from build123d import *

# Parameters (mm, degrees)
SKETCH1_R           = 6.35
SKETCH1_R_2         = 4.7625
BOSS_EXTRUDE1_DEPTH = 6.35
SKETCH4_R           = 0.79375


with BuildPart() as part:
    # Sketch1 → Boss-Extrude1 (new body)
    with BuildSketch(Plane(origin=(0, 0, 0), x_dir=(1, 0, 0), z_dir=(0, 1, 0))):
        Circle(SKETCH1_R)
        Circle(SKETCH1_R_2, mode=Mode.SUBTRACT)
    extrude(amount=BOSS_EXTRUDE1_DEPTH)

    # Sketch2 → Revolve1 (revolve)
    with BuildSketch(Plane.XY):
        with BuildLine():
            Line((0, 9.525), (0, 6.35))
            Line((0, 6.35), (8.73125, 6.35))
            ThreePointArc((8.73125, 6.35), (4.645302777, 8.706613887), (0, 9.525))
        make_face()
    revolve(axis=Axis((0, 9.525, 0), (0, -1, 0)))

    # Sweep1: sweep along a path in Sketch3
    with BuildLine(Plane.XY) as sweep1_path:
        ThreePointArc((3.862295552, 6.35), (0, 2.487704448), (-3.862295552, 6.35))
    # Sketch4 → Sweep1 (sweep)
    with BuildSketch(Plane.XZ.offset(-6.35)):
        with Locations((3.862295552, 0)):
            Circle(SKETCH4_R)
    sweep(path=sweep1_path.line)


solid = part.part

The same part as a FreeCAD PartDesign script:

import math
import FreeCAD as App
import Part
import Sketcher
Q = App.Units.Quantity

doc = App.newDocument("Part")
body = doc.addObject("PartDesign::Body", "Body")

# Sketch on XZ plane
sketch1 = doc.addObject("Sketcher::SketchObject", "Sketch")
body.addObject(sketch1)
sketch1.AttachmentSupport = (doc.XZ_Plane, [""])
sketch1.MapMode = "FlatFace"
sketch1.addGeometry([
    Part.Circle(App.Vector(0, 0, 0), App.Vector(0, 0, 1), 6.3),
    Part.Circle(App.Vector(0, 0, 0), App.Vector(0, 0, 1), 4.8),
], False)
sketch1.addConstraint([
    Sketcher.Constraint("Coincident", 0, 3, -1, 1),
    Sketcher.Constraint("Coincident", 1, 3, -1, 1),
    Sketcher.Constraint("Diameter", 0, Q("0.5 in")),
    Sketcher.Constraint("Diameter", 1, Q("0.375 in")),
])
pad1 = doc.addObject("PartDesign::Pad", "Pad")
body.addObject(pad1)
pad1.Profile = sketch1
pad1.Length = Q("0.25 in")
pad1.Reversed = True

# Sketch on XY plane
sketch2 = doc.addObject("Sketcher::SketchObject", "Sketch001")
body.addObject(sketch2)
sketch2.AttachmentSupport = (doc.XY_Plane, [""])
sketch2.MapMode = "FlatFace"
sketch2.addGeometry([
    Part.LineSegment(App.Vector(0, 9.5, 0), App.Vector(0, 6.3, 0)),
    Part.LineSegment(App.Vector(0, 6.3, 0), App.Vector(8.7, 6.3, 0)),
    Part.ArcOfCircle(Part.Circle(App.Vector(0, -4.1, 0), App.Vector(0, 0, 1), 13.6), math.radians(50), math.radians(90)),
], False)
sketch2.addConstraint([
    Sketcher.Constraint("Coincident", 0, 2, 1, 1),
    Sketcher.Constraint("Coincident", 1, 2, 2, 1),
    Sketcher.Constraint("Coincident", 2, 2, 0, 1),
    Sketcher.Constraint("Vertical", 0),
    Sketcher.Constraint("Horizontal", 1),
    Sketcher.Constraint("PointOnObject", 2, 3, -2),
    Sketcher.Constraint("PointOnObject", 0, 2, -2),
    Sketcher.Constraint("DistanceX", 1, 1, 1, 2, Q("0.34375 in")),
    Sketcher.Constraint("DistanceY", 0, 2, 0, 1, Q("0.125 in")),
    Sketcher.Constraint("DistanceY", -1, 1, 0, 2, Q("0.25 in")),
])
revolution = doc.addObject("PartDesign::Revolution", "Revolution")
body.addObject(revolution)
revolution.Profile = sketch2
revolution.ReferenceAxis = (sketch2, ["V_Axis"])
revolution.Angle = 360

# Sketch on XZ plane
sketch3 = doc.addObject("Sketcher::SketchObject", "Sketch002")
body.addObject(sketch3)
sketch3.AttachmentSupport = (doc.XZ_Plane, [""])
sketch3.MapMode = "FlatFace"
sketch3.AttachmentOffset = App.Placement(App.Vector(0, 0, -0.25 * 25.4), App.Rotation())
sketch3.addGeometry(Part.Circle(App.Vector(3.9, 0, 0), App.Vector(0, 0, 1), 0.8), False)
sketch3.addConstraint([
    Sketcher.Constraint("PointOnObject", 0, 3, -1),
    Sketcher.Constraint("Diameter", 0, Q("0.0625 in")),
    Sketcher.Constraint("DistanceX", -1, 1, 0, 3, 3.862296),
])

# Sketch on XY plane
sketch4 = doc.addObject("Sketcher::SketchObject", "Sketch003")
body.addObject(sketch4)
sketch4.AttachmentSupport = (doc.XY_Plane, [""])
sketch4.MapMode = "FlatFace"
sketch4.addGeometry(Part.ArcOfCircle(Part.Circle(App.Vector(0, 6.3, 0), App.Vector(0, 0, 1), 3.9), math.radians(180), math.radians(360)), False)
sketch4.addConstraint([
    Sketcher.Constraint("Symmetric", 0, 1, 0, 2, -2),
    Sketcher.Constraint("DistanceY", -1, 1, 0, 3, Q("0.25 in")),
    Sketcher.Constraint("DistanceY", -1, 1, 0, 1, Q("0.25 in")),
    Sketcher.Constraint("Radius", 0, 3.862296),
])
doc.recompute()

additivepipe = doc.addObject("PartDesign::AdditivePipe", "AdditivePipe")
body.addObject(additivepipe)
additivepipe.Profile = sketch3
additivepipe.Spine = (sketch4, ["Edge1"])

doc.recompute()
